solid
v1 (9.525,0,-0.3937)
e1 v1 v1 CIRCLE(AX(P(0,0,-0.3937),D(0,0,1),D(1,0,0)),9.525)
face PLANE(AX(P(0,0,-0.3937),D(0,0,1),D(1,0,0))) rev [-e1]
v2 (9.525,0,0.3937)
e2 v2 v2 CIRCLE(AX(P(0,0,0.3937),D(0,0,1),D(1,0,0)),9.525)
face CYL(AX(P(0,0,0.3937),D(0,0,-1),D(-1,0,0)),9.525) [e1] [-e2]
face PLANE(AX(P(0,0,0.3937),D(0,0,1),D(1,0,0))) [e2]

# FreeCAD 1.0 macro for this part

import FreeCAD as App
import Part
import Sketcher

V = App.Vector
Q = App.Units.Quantity

doc = App.newDocument("Part")
body = doc.addObject("PartDesign::Body", "Body")

sketch1 = doc.addObject("Sketcher::SketchObject", "Sketch")
body.addObject(sketch1)
sketch1.AttachmentSupport = (doc.XY_Plane, [""])
sketch1.MapMode = "FlatFace"
sketch1.addGeometry(Part.Circle(V(0, 0, 0), V(0, 0, 1), 10), False)
sketch1.addConstraint([
    Sketcher.Constraint("Coincident", 0, 3, -1, 1),
    Sketcher.Constraint("Diameter", 0, Q("0.75 in")),
])
pad1 = doc.addObject("PartDesign::Pad", "Pad")
body.addObject(pad1)
pad1.Profile = sketch1
pad1.Length = Q("0.031 in")
pad1.Midplane = True

doc.recompute()
